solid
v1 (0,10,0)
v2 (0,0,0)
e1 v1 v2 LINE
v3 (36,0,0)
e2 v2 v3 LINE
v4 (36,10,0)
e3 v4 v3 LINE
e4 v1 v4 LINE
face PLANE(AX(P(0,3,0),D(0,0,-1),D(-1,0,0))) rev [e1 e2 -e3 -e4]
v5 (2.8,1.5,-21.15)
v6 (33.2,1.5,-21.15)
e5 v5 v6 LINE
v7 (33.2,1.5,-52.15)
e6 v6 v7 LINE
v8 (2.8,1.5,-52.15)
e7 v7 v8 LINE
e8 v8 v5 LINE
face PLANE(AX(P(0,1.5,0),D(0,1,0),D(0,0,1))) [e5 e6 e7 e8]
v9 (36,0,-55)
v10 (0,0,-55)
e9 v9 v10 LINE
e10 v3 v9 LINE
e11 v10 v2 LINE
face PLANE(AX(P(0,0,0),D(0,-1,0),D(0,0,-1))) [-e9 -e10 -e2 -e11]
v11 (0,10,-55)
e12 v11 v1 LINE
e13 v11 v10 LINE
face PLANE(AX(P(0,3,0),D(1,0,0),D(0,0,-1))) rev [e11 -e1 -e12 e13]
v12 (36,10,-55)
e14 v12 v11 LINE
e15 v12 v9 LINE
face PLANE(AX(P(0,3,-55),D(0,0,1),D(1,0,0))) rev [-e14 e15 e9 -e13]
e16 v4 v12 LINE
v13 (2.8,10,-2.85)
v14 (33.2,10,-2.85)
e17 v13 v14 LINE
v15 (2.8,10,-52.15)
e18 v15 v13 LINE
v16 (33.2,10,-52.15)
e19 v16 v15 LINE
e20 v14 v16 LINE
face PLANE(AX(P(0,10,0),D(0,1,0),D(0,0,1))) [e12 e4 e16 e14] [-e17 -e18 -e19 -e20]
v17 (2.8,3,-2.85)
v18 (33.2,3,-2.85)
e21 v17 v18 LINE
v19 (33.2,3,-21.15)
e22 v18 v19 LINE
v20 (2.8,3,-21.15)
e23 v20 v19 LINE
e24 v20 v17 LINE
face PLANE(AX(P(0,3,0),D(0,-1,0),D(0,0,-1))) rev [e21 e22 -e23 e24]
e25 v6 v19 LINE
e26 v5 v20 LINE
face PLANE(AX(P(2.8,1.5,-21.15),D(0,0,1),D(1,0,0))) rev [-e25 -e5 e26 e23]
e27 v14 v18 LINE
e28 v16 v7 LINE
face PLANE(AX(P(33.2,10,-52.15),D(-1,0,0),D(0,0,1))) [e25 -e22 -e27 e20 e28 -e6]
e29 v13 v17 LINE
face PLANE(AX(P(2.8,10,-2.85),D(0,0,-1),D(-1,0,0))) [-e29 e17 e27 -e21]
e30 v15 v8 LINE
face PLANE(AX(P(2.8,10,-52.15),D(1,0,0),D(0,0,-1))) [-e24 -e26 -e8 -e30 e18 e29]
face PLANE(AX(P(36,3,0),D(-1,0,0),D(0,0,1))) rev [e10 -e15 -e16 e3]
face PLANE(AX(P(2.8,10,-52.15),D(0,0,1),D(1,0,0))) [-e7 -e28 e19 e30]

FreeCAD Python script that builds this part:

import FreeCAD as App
import Part
import Sketcher
from FreeCAD import Vector

doc = App.newDocument("Part")
body = doc.addObject("PartDesign::Body", "Body")

# Sketch on XZ plane
sketch1 = body.newObject("Sketcher::SketchObject", "Sketch")
sketch1.AttachmentSupport = (doc.getObject("XZ_Plane"), [""])
sketch1.MapMode = "FlatFace"
sketch1.addGeometry([
    Part.LineSegment(Vector(0, -55, 0), Vector(0, 0, 0)),
    Part.LineSegment(Vector(0, 0, 0), Vector(36, 0, 0)),
    Part.LineSegment(Vector(36, 0, 0), Vector(36, -55, 0)),
    Part.LineSegment(Vector(36, -55, 0), Vector(0, -55, 0)),
], False)
sketch1.addConstraint([
    Sketcher.Constraint("Coincident", 0, 2, 1, 1),
    Sketcher.Constraint("Coincident", 1, 2, 2, 1),
    Sketcher.Constraint("Coincident", 2, 2, 3, 1),
    Sketcher.Constraint("Coincident", 3, 2, 0, 1),
    Sketcher.Constraint("Vertical", 0),
    Sketcher.Constraint("Horizontal", 1),
    Sketcher.Constraint("Vertical", 2),
    Sketcher.Constraint("Horizontal", 3),
    Sketcher.Constraint("Coincident", 0, 2, -1, 1),
    Sketcher.Constraint("DistanceX", 1, 1, 1, 2, 36.0),
    Sketcher.Constraint("DistanceY", 0, 1, 0, 2, 55.0),
])
pad1 = body.newObject("PartDesign::Pad", "Pad")
pad1.Profile = sketch1
pad1.Length = 3
pad1.Reversed = True

# Sketch on XZ plane
sketch2 = body.newObject("Sketcher::SketchObject", "Sketch001")
sketch2.AttachmentSupport = (doc.getObject("XZ_Plane"), [""])
sketch2.MapMode = "FlatFace"
sketch2.AttachmentOffset = App.Placement(Vector(0, 0, -3), App.Rotation())
sketch2.addGeometry([
    Part.LineSegment(Vector(0, -55, 0), Vector(0, 0, 0)),  # 0
    Part.LineSegment(Vector(0, 0, 0), Vector(36, 0, 0)),  # 1
    Part.LineSegment(Vector(36, 0, 0), Vector(36, -55, 0)),  # 2
    Part.LineSegment(Vector(36, -55, 0), Vector(0, -55, 0)),  # 3
    Part.LineSegment(Vector(33, -3, 0), Vector(3, -3, 0)),  # 4
    Part.LineSegment(Vector(3, -3, 0), Vector(3, -52, 0)),  # 5
    Part.LineSegment(Vector(3, -52, 0), Vector(33, -52, 0)),  # 6
    Part.LineSegment(Vector(33, -52, 0), Vector(33, -3, 0)),  # 7
], False)
sketch2.addConstraint([
    Sketcher.Constraint("Coincident", 0, 2, 1, 1),
    Sketcher.Constraint("Coincident", 1, 2, 2, 1),
    Sketcher.Constraint("Coincident", 2, 2, 3, 1),
    Sketcher.Constraint("Coincident", 3, 2, 0, 1),
    Sketcher.Constraint("Coincident", 4, 2, 5, 1),
    Sketcher.Constraint("Coincident", 5, 2, 6, 1),
    Sketcher.Constraint("Coincident", 6, 2, 7, 1),
    Sketcher.Constraint("Coincident", 7, 2, 4, 1),
    Sketcher.Constraint("Vertical", 0),
    Sketcher.Constraint("Horizontal", 1),
    Sketcher.Constraint("Vertical", 2),
    Sketcher.Constraint("Horizontal", 3),
    Sketcher.Constraint("Horizontal", 4),
    Sketcher.Constraint("Vertical", 5),
    Sketcher.Constraint("Horizontal", 6),
    Sketcher.Constraint("Vertical", 7),
    Sketcher.Constraint("Coincident", 0, 2, -1, 1),
    Sketcher.Constraint("DistanceX", 1, 1, 1, 2, 36.0),
    Sketcher.Constraint("DistanceY", 0, 1, 0, 2, 55.0),
    Sketcher.Constraint("DistanceX", 4, 2, 4, 1, 30.4),
    Sketcher.Constraint("DistanceY", 5, 2, 5, 1, 49.3),
    Sketcher.Constraint("DistanceX", -1, 1, 4, 2, 2.8),
    Sketcher.Constraint("DistanceY", 4, 2, -1, 1, 2.85),
])
pad2 = body.newObject("PartDesign::Pad", "Pad001")
pad2.Profile = sketch2
pad2.Length = 7
pad2.Reversed = True

# Sketch on XZ plane
sketch3 = body.newObject("Sketcher::SketchObject", "Sketch002")
sketch3.AttachmentSupport = (doc.getObject("XZ_Plane"), [""])
sketch3.MapMode = "FlatFace"
sketch3.AttachmentOffset = App.Placement(Vector(0, 0, -3), App.Rotation())
sketch3.addGeometry([
    Part.LineSegment(Vector(3, -52, 0), Vector(3, -21, 0)),
    Part.LineSegment(Vector(3, -21, 0), Vector(33, -21, 0)),
    Part.LineSegment(Vector(33, -21, 0), Vector(33, -52, 0)),
    Part.LineSegment(Vector(33, -52, 0), Vector(3, -52, 0)),
], False)
sketch3.addConstraint([
    Sketcher.Constraint("Coincident", 0, 2, 1, 1),
    Sketcher.Constraint("Coincident", 1, 2, 2, 1),
    Sketcher.Constraint("Coincident", 2, 2, 3, 1),
    Sketcher.Constraint("Coincident", 3, 2, 0, 1),
    Sketcher.Constraint("Vertical", 0),
    Sketcher.Constraint("Horizontal", 1),
    Sketcher.Constraint("Vertical", 2),
    Sketcher.Constraint("Horizontal", 3),
    Sketcher.Constraint("DistanceY", 0, 1, 0, 2, 31.0),
    Sketcher.Constraint("DistanceX", 1, 1, 1, 2, 30.4),
    Sketcher.Constraint("DistanceX", -1, 1, 0, 2, 2.8),
    Sketcher.Constraint("DistanceY", 0, 2, -1, 1, 21.15),
])
pocket1 = body.newObject("PartDesign::Pocket", "Pocket")
pocket1.Profile = sketch3
pocket1.Length = 1.5
pocket1.Reversed = True

doc.recompute()
